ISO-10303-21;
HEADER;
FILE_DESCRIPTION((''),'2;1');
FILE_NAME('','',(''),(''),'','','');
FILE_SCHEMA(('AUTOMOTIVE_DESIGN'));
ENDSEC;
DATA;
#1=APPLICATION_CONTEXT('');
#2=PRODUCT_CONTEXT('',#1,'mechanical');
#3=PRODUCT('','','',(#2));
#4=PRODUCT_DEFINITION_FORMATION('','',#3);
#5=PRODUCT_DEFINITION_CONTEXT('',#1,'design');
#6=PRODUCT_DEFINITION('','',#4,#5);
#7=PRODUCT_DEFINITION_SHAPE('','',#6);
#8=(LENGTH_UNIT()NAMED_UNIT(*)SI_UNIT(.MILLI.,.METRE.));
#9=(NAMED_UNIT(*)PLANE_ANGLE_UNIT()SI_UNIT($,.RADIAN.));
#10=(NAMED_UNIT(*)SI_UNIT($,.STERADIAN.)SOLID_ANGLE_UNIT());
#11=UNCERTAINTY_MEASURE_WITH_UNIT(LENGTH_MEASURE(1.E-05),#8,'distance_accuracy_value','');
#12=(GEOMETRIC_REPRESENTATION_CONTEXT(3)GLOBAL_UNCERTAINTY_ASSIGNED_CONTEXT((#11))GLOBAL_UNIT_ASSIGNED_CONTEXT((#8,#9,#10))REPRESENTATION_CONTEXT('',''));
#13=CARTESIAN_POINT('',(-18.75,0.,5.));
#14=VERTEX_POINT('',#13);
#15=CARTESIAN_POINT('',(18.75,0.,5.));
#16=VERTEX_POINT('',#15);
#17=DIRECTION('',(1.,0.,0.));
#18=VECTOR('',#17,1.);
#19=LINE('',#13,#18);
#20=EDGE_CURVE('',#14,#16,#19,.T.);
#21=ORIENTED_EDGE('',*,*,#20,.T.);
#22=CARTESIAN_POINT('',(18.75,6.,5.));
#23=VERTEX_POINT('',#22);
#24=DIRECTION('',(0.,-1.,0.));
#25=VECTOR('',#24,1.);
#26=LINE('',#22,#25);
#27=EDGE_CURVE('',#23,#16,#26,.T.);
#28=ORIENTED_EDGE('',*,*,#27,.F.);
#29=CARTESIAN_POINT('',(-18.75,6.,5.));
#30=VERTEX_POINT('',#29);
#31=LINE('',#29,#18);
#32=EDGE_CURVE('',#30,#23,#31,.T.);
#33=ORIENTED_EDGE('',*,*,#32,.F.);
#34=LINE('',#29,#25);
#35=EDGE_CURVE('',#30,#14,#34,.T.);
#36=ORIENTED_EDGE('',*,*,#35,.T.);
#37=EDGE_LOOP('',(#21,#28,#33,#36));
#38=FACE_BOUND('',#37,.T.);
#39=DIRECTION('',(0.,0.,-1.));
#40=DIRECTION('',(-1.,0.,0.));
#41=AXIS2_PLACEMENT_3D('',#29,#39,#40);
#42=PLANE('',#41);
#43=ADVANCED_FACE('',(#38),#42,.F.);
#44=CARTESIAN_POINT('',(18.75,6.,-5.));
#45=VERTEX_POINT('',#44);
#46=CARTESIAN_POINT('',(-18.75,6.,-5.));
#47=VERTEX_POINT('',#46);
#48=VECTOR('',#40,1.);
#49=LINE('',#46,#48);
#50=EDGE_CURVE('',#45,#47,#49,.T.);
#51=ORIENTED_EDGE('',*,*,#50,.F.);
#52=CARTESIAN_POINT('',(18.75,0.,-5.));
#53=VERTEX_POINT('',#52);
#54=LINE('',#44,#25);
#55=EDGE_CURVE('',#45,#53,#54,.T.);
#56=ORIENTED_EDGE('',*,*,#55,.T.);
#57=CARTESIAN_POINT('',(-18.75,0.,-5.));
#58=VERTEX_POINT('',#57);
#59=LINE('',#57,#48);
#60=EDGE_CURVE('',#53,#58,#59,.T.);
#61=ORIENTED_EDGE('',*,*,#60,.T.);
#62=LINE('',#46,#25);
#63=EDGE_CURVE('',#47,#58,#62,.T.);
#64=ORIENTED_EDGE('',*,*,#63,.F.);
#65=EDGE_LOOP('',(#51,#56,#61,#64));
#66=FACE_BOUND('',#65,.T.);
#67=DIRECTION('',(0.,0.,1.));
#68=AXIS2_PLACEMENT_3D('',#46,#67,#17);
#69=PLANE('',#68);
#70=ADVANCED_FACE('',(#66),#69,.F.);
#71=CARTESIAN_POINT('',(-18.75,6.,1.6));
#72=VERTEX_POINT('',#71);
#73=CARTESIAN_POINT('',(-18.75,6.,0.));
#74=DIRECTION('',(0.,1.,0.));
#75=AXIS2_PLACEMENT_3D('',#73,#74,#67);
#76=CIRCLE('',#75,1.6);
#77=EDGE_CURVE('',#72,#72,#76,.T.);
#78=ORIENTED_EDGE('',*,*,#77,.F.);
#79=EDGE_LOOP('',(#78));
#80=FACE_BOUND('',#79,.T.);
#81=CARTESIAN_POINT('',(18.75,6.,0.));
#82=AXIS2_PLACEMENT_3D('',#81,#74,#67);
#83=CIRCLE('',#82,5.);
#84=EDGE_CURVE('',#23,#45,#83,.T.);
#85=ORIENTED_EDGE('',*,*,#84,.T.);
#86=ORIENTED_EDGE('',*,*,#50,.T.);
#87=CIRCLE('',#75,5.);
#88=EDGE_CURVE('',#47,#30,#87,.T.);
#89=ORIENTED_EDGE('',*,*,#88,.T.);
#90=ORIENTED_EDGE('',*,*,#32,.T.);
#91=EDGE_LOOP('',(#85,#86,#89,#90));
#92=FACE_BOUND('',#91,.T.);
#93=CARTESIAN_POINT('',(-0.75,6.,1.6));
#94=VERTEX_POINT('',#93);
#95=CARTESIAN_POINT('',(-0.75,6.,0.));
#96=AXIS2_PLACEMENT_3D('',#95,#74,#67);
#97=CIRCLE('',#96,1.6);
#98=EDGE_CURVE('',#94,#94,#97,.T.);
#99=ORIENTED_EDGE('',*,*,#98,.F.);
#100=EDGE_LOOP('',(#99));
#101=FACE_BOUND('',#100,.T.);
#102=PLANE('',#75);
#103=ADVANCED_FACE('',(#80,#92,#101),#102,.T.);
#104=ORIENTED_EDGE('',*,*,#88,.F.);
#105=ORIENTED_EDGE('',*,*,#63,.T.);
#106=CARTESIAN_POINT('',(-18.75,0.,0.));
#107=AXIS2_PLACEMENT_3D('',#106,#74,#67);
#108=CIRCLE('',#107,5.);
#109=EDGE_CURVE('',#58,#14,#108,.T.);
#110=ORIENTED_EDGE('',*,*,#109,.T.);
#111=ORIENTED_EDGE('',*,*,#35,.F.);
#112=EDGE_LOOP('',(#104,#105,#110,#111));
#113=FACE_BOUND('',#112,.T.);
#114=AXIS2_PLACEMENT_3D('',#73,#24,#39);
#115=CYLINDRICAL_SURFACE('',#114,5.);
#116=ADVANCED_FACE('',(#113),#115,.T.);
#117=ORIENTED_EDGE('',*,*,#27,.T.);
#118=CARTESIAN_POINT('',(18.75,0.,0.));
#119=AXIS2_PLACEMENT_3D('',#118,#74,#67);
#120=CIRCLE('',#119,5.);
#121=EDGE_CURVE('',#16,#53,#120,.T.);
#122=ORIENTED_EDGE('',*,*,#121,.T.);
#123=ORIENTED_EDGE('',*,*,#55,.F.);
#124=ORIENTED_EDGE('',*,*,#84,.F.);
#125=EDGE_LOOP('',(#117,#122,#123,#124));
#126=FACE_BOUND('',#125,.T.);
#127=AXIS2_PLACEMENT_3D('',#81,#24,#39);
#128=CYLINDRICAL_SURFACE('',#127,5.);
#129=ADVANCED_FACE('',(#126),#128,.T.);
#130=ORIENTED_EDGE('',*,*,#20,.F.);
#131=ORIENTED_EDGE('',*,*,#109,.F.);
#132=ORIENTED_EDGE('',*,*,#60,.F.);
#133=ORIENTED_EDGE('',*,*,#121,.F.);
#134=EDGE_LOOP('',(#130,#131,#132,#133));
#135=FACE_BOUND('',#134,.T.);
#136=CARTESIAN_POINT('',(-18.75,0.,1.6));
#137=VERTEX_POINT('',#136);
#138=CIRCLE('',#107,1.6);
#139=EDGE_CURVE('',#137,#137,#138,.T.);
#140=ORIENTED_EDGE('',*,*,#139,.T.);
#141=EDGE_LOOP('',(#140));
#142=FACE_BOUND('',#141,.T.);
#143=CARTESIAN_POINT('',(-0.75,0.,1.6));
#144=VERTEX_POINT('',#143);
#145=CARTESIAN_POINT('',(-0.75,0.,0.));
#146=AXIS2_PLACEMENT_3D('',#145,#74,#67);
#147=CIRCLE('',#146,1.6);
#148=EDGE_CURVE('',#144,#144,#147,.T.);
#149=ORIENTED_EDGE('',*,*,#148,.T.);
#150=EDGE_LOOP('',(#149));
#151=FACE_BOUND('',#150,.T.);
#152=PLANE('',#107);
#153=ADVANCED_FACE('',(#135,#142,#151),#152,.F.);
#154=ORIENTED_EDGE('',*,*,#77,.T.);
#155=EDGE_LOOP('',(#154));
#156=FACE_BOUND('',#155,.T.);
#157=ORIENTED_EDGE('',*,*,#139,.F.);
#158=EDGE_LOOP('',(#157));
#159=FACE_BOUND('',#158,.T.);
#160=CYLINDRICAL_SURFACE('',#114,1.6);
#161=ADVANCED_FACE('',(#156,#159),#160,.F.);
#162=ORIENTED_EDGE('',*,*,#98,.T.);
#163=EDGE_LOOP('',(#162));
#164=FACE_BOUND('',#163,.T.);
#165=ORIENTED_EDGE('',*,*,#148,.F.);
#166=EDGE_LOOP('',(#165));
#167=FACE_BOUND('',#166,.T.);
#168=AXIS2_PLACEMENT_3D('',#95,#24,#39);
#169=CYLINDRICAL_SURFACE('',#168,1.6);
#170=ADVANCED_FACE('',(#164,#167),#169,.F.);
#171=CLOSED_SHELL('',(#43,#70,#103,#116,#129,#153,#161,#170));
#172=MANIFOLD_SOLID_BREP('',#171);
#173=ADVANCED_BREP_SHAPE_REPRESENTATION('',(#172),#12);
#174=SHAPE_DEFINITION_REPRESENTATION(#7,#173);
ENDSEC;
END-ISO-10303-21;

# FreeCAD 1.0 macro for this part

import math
import FreeCAD as App
import Part
import Sketcher
Q = App.Units.Quantity

doc = App.newDocument("Part")
body = doc.addObject("PartDesign::Body", "Body")

# Sketch on XZ plane
sketch1 = doc.addObject("Sketcher::SketchObject", "Sketch")
body.addObject(sketch1)
sketch1.AttachmentSupport = (doc.XZ_Plane, [""])
sketch1.MapMode = "FlatFace"
sketch1.addGeometry([
    Part.LineSegment(App.Vector(18.8, -5, 0), App.Vector(-18.8, -5, 0)),  # 0
    Part.ArcOfCircle(Part.Circle(App.Vector(-18.8, 0, 0), App.Vector(0, 0, 1), 5), math.radians(90), math.radians(270)),  # 1
    Part.LineSegment(App.Vector(-18.8, 5, 0), App.Vector(18.8, 5, 0)),  # 2
    Part.ArcOfCircle(Part.Circle(App.Vector(18.8, 0, 0), App.Vector(0, 0, 1), 5), math.radians(-90), math.radians(90)),  # 3
    Part.Circle(App.Vector(-0.8, 0, 0), App.Vector(0, 0, 1), 1.6),  # 4
    Part.Circle(App.Vector(-18.8, 0, 0), App.Vector(0, 0, 1), 1.6),  # 5
], False)
sketch1.addConstraint([
    Sketcher.Constraint("Tangent", 0, 2, 1, 2),
    Sketcher.Constraint("Tangent", 1, 1, 2, 1),
    Sketcher.Constraint("Tangent", 2, 2, 3, 2),
    Sketcher.Constraint("Tangent", 3, 1, 0, 1),
    Sketcher.Constraint("Horizontal", 0),
    Sketcher.Constraint("Horizontal", 2),
    Sketcher.Constraint("Coincident", 5, 3, 1, 3),
    Sketcher.Constraint("Equal", 4, 5),
    Sketcher.Constraint("Symmetric", 1, 3, 3, 3, -1, 1),
    Sketcher.Constraint("PointOnObject", 4, 3, -1),
    Sketcher.Constraint("Radius", 1, Q("5 mm")),
    Sketcher.Constraint("Diameter", 4, Q("3.2 mm")),
    Sketcher.Constraint("DistanceX", 0, 2, 0, 1, Q("37.5 mm")),
    Sketcher.Constraint("DistanceX", 1, 3, 4, 3, Q("18 mm")),
])
pad1 = doc.addObject("PartDesign::Pad", "Pad")
body.addObject(pad1)
pad1.Profile = sketch1
pad1.Length = 6
pad1.Reversed = True

doc.recompute()
